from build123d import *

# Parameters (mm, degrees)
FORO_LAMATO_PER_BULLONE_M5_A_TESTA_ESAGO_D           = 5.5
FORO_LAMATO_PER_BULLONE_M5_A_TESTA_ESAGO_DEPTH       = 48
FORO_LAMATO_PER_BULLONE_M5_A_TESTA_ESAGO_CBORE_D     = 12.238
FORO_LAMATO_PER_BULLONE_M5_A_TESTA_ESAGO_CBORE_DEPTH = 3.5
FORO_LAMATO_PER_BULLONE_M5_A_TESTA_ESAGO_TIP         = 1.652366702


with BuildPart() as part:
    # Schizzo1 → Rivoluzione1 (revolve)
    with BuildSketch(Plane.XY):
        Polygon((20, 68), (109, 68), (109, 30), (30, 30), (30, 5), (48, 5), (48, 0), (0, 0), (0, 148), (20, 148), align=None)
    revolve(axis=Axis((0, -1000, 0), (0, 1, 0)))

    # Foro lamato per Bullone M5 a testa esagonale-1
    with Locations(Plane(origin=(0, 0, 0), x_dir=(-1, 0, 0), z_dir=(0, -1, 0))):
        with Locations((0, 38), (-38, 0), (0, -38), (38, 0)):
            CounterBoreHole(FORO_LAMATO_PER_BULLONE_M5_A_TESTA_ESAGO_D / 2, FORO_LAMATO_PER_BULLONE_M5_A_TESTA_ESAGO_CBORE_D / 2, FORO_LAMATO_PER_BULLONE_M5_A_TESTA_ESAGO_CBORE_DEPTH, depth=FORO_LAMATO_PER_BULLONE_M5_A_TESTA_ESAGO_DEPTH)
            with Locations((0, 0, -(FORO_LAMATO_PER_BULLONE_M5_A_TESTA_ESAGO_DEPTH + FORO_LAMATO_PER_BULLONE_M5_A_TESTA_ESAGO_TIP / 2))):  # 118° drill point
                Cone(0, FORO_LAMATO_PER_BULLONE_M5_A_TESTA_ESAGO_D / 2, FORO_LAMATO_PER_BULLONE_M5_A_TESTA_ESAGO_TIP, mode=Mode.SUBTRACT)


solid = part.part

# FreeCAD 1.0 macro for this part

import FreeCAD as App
import Part
import Sketcher
from FreeCAD import Vector


def add_polygon(sketch, points):
    """Adds a closed chain of lines whose ends are joined by coincident constraints."""
    first, n = sketch.GeometryCount, len(points)
    for a, b in zip(points, points[1:] + points[:1]):
        sketch.addGeometry(Part.LineSegment(App.Vector(*a, 0), App.Vector(*b, 0)), False)
    for i in range(n):
        sketch.addConstraint(Sketcher.Constraint("Coincident", first + i, 2, first + (i + 1) % n, 1))

doc = App.newDocument("Part")
params = doc.addObject("Spreadsheet::Sheet", "Params")
for row, (alias, value) in enumerate([
    ("sketch1_width", "89 mm"),
    ("sketch1_width2", "20 mm"),
    ("sketch1_width3", "48 mm"),
    ("sketch1_width4", "18 mm"),
    ("sketch1_height", "80 mm"),
    ("revolution_angle", "360 deg"),
    ("sketch2_diameter", "5.5 mm"),
    ("hole_diameter", "5.5 mm"),
    ("hole_depth", "48 mm"),
    ("hole_cbore_diameter", "12.238 mm"),
    ("hole_cbore_depth", "3.5 mm"),
], start=1):
    params.set(f"A{row}", alias)
    params.set(f"B{row}", "=" + value)
    params.setAlias(f"B{row}", alias)

body = doc.addObject("PartDesign::Body", "Body")

# Sketch on XY plane
sketch1 = body.newObject("Sketcher::SketchObject", "Sketch")
sketch1.AttachmentSupport = (doc.getObject("XY_Plane"), [""])
sketch1.MapMode = "FlatFace"
add_polygon(sketch1, [(109, 68), (20, 68), (20, 148), (0, 148), (0, 0), (48, 0), (48, 5), (30, 5), (30, 30), (109, 30)])  # lines 0-9
sketch1.addConstraint([
    Sketcher.Constraint("Horizontal", 0),
    Sketcher.Constraint("Vertical", 1),
    Sketcher.Constraint("Horizontal", 2),
    Sketcher.Constraint("Vertical", 3),
    Sketcher.Constraint("Horizontal", 4),
    Sketcher.Constraint("Vertical", 5),
    Sketcher.Constraint("Horizontal", 6),
    Sketcher.Constraint("Vertical", 7),
    Sketcher.Constraint("Horizontal", 8),
    Sketcher.Constraint("Vertical", 9),
    Sketcher.Constraint("Coincident", 3, 2, -1, 1),
    Sketcher.Constraint("DistanceX", 0, 2, 0, 1, 89.0),
    Sketcher.Constraint("DistanceX", 2, 2, 2, 1, 20.0),
    Sketcher.Constraint("DistanceX", 4, 1, 4, 2, 48.0),
    Sketcher.Constraint("DistanceX", 6, 2, 6, 1, 18.0),
    Sketcher.Constraint("DistanceY", 1, 1, 1, 2, 80.0),
    Sketcher.Constraint("DistanceY", 3, 2, 3, 1, 148.0),
    Sketcher.Constraint("DistanceY", 5, 1, 5, 2, 5.0),
    Sketcher.Constraint("DistanceY", 7, 1, 7, 2, 25.0),
])
sketch1.setExpression("Constraints[21]", "Params.sketch1_width")
sketch1.setExpression("Constraints[22]", "Params.sketch1_width2")
sketch1.setExpression("Constraints[23]", "Params.sketch1_width3")
sketch1.setExpression("Constraints[24]", "Params.sketch1_width4")
sketch1.setExpression("Constraints[25]", "Params.sketch1_height")
revolution = body.newObject("PartDesign::Revolution", "Revolution")
revolution.Profile = sketch1
revolution.ReferenceAxis = (sketch1, ["V_Axis"])
revolution.setExpression("Angle", "Params.revolution_angle")

# Sketch on XZ plane
sketch2 = body.newObject("Sketcher::SketchObject", "Sketch001")
sketch2.AttachmentSupport = (doc.getObject("XZ_Plane"), [""])
sketch2.MapMode = "FlatFace"
sketch2.addGeometry([
    Part.Circle(Vector(0, -38, 0), Vector(0, 0, 1), 2.8),
    Part.Circle(Vector(38, 0, 0), Vector(0, 0, 1), 2.8),
    Part.Circle(Vector(0, 38, 0), Vector(0, 0, 1), 2.8),
    Part.Circle(Vector(-38, 0, 0), Vector(0, 0, 1), 2.8),
], False)
sketch2.addConstraint([
    Sketcher.Constraint("Equal", 0, 1),
    Sketcher.Constraint("Equal", 1, 2),
    Sketcher.Constraint("Equal", 2, 3),
    Sketcher.Constraint("Symmetric", 0, 3, 2, 3, -1, 1),
    Sketcher.Constraint("Symmetric", 1, 3, 3, 3, -1, 1),
    Sketcher.Constraint("PointOnObject", 0, 3, -2),
    Sketcher.Constraint("PointOnObject", 1, 3, -1),
    Sketcher.Constraint("Diameter", 0, 5.5),
    Sketcher.Constraint("DistanceY", 0, 3, -1, 1, 38.0),
    Sketcher.Constraint("DistanceX", -1, 1, 1, 3, 38.0),
])
sketch2.setExpression("Constraints[7]", "Params.sketch2_diameter")
doc.recompute()
hole = body.newObject("PartDesign::Hole", "Hole")
hole.Profile = sketch2
hole.ThreadType = "None"
hole.setExpression("Diameter", "Params.hole_diameter")
hole.DepthType = "Dimension"
hole.setExpression("Depth", "Params.hole_depth")
hole.DrillPoint = "Angled"
hole.DrillPointAngle = 118
hole.HoleCutType = "Counterbore"
hole.setExpression("HoleCutDiameter", "Params.hole_cbore_diameter")
hole.setExpression("HoleCutDepth", "Params.hole_cbore_depth")

doc.recompute()
